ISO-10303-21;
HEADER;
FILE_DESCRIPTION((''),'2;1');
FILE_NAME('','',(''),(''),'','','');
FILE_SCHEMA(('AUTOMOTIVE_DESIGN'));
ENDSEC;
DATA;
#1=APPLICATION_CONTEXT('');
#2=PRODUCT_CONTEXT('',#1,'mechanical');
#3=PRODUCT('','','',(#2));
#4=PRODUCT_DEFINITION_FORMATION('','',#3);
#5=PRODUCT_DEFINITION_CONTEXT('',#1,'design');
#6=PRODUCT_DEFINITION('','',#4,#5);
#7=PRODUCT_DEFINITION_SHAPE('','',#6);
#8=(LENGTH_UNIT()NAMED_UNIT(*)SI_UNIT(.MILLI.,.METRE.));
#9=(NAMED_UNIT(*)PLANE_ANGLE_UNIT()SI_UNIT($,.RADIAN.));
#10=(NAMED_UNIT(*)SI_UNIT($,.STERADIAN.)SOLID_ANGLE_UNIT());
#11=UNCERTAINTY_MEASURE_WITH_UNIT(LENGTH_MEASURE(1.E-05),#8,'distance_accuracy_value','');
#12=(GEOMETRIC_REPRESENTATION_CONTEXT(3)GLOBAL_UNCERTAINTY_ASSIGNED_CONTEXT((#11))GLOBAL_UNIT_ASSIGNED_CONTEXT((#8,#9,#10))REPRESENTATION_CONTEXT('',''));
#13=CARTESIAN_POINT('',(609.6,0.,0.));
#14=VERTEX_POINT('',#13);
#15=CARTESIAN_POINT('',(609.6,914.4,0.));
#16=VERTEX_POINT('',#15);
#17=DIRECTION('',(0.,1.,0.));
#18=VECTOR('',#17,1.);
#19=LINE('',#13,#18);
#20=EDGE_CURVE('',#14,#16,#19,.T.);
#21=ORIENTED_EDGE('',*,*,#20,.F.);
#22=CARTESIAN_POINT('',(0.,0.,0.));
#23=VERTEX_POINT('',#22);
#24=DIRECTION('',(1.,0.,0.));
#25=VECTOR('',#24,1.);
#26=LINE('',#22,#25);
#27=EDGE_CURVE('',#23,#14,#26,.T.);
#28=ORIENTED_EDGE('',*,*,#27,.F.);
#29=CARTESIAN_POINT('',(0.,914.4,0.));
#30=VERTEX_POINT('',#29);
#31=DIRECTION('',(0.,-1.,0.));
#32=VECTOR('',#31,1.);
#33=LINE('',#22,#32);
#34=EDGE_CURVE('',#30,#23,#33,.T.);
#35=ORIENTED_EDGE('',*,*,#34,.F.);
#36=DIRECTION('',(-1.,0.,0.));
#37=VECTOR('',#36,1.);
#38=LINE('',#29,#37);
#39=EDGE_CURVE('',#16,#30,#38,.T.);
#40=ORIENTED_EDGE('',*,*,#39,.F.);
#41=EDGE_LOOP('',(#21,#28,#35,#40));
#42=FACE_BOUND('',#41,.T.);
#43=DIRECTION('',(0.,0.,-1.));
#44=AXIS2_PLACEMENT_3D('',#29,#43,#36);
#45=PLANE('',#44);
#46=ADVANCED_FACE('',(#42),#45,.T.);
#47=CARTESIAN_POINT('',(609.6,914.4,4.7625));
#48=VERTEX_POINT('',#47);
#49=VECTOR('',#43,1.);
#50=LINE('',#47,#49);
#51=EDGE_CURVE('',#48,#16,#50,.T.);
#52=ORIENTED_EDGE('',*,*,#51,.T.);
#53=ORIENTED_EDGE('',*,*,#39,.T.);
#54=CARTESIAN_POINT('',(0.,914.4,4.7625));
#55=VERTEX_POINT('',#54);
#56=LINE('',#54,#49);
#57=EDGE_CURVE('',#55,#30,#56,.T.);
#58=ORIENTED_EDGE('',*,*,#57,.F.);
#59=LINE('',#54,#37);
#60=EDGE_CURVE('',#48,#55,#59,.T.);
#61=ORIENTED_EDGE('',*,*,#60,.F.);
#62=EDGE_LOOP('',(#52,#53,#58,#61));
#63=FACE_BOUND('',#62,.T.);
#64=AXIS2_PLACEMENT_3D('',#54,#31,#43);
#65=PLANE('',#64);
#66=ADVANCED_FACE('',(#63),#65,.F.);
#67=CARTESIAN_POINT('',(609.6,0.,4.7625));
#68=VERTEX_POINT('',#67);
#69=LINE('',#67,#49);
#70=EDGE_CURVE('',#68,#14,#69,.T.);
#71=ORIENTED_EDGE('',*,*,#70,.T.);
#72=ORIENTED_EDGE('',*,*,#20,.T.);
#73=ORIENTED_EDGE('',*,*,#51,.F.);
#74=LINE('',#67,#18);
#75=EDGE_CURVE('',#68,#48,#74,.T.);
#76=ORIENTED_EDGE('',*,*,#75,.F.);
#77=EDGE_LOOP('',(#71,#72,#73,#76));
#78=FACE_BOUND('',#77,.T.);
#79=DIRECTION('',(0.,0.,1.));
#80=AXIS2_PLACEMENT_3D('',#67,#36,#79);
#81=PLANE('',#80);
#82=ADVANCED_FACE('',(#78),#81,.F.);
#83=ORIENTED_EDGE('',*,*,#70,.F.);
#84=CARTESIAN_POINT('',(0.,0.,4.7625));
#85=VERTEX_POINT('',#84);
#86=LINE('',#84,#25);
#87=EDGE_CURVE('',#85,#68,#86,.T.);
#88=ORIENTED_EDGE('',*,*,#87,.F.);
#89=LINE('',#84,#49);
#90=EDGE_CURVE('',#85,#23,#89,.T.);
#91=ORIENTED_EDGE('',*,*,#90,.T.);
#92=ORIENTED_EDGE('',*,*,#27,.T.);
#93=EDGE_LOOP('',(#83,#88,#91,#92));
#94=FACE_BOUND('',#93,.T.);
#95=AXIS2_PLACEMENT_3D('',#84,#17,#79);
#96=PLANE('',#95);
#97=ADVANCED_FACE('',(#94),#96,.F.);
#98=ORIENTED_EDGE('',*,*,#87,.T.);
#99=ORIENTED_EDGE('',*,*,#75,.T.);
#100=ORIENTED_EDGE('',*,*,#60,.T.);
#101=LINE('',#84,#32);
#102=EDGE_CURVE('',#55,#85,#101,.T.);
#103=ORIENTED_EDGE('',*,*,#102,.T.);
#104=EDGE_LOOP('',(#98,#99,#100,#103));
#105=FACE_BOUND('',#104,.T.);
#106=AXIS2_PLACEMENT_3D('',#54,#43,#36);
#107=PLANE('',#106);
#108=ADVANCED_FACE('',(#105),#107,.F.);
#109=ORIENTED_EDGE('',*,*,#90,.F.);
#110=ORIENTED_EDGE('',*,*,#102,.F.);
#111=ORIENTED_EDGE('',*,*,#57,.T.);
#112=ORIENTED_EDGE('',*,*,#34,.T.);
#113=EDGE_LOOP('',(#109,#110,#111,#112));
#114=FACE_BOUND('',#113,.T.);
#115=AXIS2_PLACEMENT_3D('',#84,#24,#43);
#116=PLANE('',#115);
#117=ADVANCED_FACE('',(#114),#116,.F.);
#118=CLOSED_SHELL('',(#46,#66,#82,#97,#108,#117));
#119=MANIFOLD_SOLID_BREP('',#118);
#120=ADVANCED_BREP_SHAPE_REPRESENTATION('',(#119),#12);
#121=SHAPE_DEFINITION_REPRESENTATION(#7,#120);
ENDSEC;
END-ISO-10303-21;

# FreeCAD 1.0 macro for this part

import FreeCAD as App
import Part
import Sketcher
from FreeCAD import Vector
Q = App.Units.Quantity

doc = App.newDocument("Part")
body = doc.addObject("PartDesign::Body", "Body")

# Sketch on XY plane
sketch1 = body.newObject("Sketcher::SketchObject", "Sketch")
sketch1.AttachmentSupport = (doc.getObject("XY_Plane"), [""])
sketch1.MapMode = "FlatFace"
sketch1.addGeometry(Part.LineSegment(Vector(0, 914, 0), Vector(0, 0, 0)), False)
sketch1.addGeometry(Part.LineSegment(Vector(0, 0, 0), Vector(610, 0, 0)), False)
sketch1.addGeometry(Part.LineSegment(Vector(610, 0, 0), Vector(610, 914, 0)), False)
sketch1.addGeometry(Part.LineSegment(Vector(610, 914, 0), Vector(0, 914, 0)), False)
sketch1.addConstraint(Sketcher.Constraint("Coincident", 0, 2, 1, 1))
sketch1.addConstraint(Sketcher.Constraint("Coincident", 1, 2, 2, 1))
sketch1.addConstraint(Sketcher.Constraint("Coincident", 2, 2, 3, 1))
sketch1.addConstraint(Sketcher.Constraint("Coincident", 3, 2, 0, 1))
sketch1.addConstraint(Sketcher.Constraint("Vertical", 0))
sketch1.addConstraint(Sketcher.Constraint("Horizontal", 1))
sketch1.addConstraint(Sketcher.Constraint("Vertical", 2))
sketch1.addConstraint(Sketcher.Constraint("Horizontal", 3))
sketch1.addConstraint(Sketcher.Constraint("Coincident", 0, 2, -1, 1))
sketch1.addConstraint(Sketcher.Constraint("DistanceX", 1, 1, 1, 2, Q("24 in")))
sketch1.addConstraint(Sketcher.Constraint("DistanceY", 0, 2, 0, 1, Q("36 in")))
pad1 = body.newObject("PartDesign::Pad", "Pad")
pad1.Profile = sketch1
pad1.Length = Q("0.1875 in")

doc.recompute()
